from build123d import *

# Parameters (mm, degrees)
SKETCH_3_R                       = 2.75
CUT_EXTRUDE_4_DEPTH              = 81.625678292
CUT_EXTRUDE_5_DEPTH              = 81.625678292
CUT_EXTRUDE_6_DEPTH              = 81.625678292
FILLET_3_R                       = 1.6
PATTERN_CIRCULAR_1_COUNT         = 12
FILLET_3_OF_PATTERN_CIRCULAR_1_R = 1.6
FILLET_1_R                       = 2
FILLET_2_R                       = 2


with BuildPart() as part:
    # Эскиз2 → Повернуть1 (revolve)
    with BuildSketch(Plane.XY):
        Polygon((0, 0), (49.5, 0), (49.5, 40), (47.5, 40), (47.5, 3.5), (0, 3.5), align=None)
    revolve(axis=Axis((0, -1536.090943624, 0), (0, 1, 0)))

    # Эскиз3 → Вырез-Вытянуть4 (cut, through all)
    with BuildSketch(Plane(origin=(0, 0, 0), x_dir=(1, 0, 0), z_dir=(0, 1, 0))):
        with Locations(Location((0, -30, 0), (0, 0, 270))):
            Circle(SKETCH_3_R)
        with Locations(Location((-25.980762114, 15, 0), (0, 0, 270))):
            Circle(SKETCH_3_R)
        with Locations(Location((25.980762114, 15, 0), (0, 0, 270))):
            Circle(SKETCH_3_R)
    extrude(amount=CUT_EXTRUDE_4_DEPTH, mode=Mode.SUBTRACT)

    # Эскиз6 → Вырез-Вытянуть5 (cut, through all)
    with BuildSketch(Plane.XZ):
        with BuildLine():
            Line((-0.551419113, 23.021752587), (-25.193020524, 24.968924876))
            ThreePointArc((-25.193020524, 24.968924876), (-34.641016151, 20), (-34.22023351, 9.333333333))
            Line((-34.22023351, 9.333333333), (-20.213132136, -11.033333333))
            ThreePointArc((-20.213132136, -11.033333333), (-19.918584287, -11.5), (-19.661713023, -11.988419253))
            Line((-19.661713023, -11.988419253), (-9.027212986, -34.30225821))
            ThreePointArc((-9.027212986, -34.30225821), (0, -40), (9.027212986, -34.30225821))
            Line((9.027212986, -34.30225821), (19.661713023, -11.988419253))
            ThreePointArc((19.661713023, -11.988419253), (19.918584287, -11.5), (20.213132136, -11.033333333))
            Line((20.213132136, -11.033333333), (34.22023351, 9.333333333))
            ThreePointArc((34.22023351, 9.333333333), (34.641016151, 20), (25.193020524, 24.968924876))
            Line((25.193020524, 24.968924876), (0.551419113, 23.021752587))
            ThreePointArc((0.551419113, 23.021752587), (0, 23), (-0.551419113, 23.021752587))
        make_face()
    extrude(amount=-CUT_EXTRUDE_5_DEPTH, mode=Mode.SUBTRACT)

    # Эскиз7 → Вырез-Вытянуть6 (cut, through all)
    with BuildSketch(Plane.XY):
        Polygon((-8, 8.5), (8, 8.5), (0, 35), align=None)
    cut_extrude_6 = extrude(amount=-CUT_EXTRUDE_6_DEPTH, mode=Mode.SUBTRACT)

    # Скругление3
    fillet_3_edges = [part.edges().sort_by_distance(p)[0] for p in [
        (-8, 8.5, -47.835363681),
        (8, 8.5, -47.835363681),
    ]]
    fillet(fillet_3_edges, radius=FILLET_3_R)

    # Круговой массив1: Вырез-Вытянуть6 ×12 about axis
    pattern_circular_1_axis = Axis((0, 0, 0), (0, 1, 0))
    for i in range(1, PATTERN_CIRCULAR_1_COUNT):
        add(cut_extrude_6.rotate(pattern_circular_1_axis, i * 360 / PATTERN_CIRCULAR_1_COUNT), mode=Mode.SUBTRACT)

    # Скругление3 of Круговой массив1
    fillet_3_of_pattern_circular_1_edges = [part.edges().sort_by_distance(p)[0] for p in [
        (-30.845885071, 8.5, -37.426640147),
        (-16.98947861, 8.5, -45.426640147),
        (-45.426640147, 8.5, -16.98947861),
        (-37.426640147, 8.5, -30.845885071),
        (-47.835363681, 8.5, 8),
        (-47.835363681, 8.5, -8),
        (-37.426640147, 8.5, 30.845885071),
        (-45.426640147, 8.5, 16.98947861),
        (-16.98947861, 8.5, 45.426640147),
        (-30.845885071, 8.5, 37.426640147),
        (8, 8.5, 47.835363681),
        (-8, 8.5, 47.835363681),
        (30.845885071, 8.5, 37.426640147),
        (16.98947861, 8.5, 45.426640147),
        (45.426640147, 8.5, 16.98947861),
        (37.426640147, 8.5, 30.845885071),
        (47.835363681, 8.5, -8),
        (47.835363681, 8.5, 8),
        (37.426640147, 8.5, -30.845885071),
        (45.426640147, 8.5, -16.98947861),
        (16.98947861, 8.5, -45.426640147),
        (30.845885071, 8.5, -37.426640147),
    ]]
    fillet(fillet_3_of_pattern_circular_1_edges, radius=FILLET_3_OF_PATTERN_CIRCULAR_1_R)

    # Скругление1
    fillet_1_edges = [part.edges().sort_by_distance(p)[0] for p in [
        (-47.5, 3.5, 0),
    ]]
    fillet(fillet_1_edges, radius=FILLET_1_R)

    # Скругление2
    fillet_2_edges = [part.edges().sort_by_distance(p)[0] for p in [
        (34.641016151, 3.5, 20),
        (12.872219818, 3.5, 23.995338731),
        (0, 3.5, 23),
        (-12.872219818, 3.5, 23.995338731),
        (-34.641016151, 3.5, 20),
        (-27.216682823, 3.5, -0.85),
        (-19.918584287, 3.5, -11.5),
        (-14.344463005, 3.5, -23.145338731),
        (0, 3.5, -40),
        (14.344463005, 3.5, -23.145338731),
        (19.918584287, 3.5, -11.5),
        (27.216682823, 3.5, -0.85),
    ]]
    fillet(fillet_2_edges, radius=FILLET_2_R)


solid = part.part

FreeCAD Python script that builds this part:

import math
import FreeCAD as App
import Part
import Sketcher
from FreeCAD import Vector
Q = App.Units.Quantity


def edges_at(feature, points):
    """Names of the edges that pass closest to the given points."""
    edges = feature.Shape.Edges
    near = lambda p: min(range(len(edges)), key=lambda i: edges[i].distToShape(Part.Vertex(*p))[0])
    return sorted({f"Edge{near(p) + 1}" for p in points})


def add_polygon(sketch, points):
    """Adds a closed chain of lines whose ends are joined by coincident constraints."""
    first, n = sketch.GeometryCount, len(points)
    for a, b in zip(points, points[1:] + points[:1]):
        sketch.addGeometry(Part.LineSegment(App.Vector(*a, 0), App.Vector(*b, 0)), False)
    for i in range(n):
        sketch.addConstraint(Sketcher.Constraint("Coincident", first + i, 2, first + (i + 1) % n, 1))

doc = App.newDocument("Part")
params = doc.addObject("Spreadsheet::Sheet", "Params")
for row, (alias, value) in enumerate([
    ("sketch1_width", "2 mm"),
    ("sketch1_height", "40 mm"),
    ("sketch1_width2", "49.5 mm"),
    ("sketch1_height2", "36.5 mm"),
    ("revolution_angle", "360 deg"),
    ("sketch2_diameter", "5.5 mm"),
    ("sketch3_radius", "10 mm"),
    ("sketch3_radius2", "7 mm"),
    ("sketch4_width", "16 mm"),
    ("fillet_radius", "1.6 mm"),
    ("fillet2_radius", "1.6 mm"),
    ("fillet3_radius", "2 mm"),
    ("fillet4_radius", "2 mm"),
], start=1):
    params.set(f"A{row}", alias)
    params.set(f"B{row}", "=" + value)
    params.setAlias(f"B{row}", alias)

body = doc.addObject("PartDesign::Body", "Body")

# Sketch on XY plane
sketch1 = body.newObject("Sketcher::SketchObject", "Sketch")
sketch1.AttachmentSupport = (doc.getObject("XY_Plane"), [""])
sketch1.MapMode = "FlatFace"
add_polygon(sketch1, [(0, 0), (49.5, 0), (49.5, 40), (47.5, 40), (47.5, 3.5), (0, 3.5)])  # lines 0-5
sketch1.addConstraint([
    Sketcher.Constraint("Horizontal", 0),
    Sketcher.Constraint("Vertical", 1),
    Sketcher.Constraint("Horizontal", 2),
    Sketcher.Constraint("Vertical", 3),
    Sketcher.Constraint("Horizontal", 4),
    Sketcher.Constraint("Vertical", 5),
    Sketcher.Constraint("Coincident", 5, 2, -1, 1),
    Sketcher.Constraint("DistanceX", 2, 2, 2, 1, Q("2 mm")),
    Sketcher.Constraint("DistanceY", 1, 1, 1, 2, Q("40 mm")),
    Sketcher.Constraint("DistanceX", 0, 1, 0, 2, Q("49.5 mm")),
    Sketcher.Constraint("DistanceY", 3, 2, 3, 1, Q("36.5 mm")),
])
sketch1.setExpression("Constraints[13]", "Params.sketch1_width")
sketch1.setExpression("Constraints[14]", "Params.sketch1_height")
sketch1.setExpression("Constraints[15]", "Params.sketch1_width2")
sketch1.setExpression("Constraints[16]", "Params.sketch1_height2")
revolution = body.newObject("PartDesign::Revolution", "Revolution")
revolution.Profile = sketch1
revolution.ReferenceAxis = (sketch1, ["V_Axis"])
revolution.setExpression("Angle", "Params.revolution_angle")

# Sketch on XZ plane
sketch2 = body.newObject("Sketcher::SketchObject", "Sketch001")
sketch2.AttachmentSupport = (doc.getObject("XZ_Plane"), [""])
sketch2.MapMode = "FlatFace"
sketch2.addGeometry([
    Part.Circle(Vector(0, 30, 0), Vector(0, 0, 1), 2.8),
    Part.Circle(Vector(-26, -15, 0), Vector(0, 0, 1), 2.8),
    Part.Circle(Vector(26, -15, 0), Vector(0, 0, 1), 2.8),
], False)
sketch2.addConstraint([
    Sketcher.Constraint("Equal", 0, 1),
    Sketcher.Constraint("Equal", 1, 2),
    Sketcher.Constraint("Symmetric", 1, 3, 2, 3, -2),
    Sketcher.Constraint("PointOnObject", 0, 3, -2),
    Sketcher.Constraint("Diameter", 0, Q("5.5 mm")),
    Sketcher.Constraint("DistanceY", -1, 1, 0, 3, Q("30 mm")),
    Sketcher.Constraint("DistanceY", 1, 3, -1, 1, Q("15 mm")),
    Sketcher.Constraint("DistanceX", 1, 3, -1, 1, Q("25.980762 mm")),
])
sketch2.setExpression("Constraints[4]", "Params.sketch2_diameter")
pocket1 = body.newObject("PartDesign::Pocket", "Pocket")
pocket1.Profile = sketch2
pocket1.Type = "ThroughAll"

# Sketch on XZ plane
sketch3 = body.newObject("Sketcher::SketchObject", "Sketch002")
sketch3.AttachmentSupport = (doc.getObject("XZ_Plane"), [""])
sketch3.MapMode = "FlatFace"
sketch3.addGeometry([
    Part.LineSegment(Vector(-0.6, 23, 0), Vector(-25.2, 25, 0)),  # 0
    Part.ArcOfCircle(Part.Circle(Vector(-26, 15, 0), Vector(0, 0, 1), 10), math.radians(85), math.radians(215)),  # 1
    Part.LineSegment(Vector(-34.2, 9.3, 0), Vector(-20.2, -11, 0)),  # 2
    Part.ArcOfCircle(Part.Circle(Vector(-26, -15, 0), Vector(0, 0, 1), 7), math.radians(25.48), math.radians(34.52)),  # 3
    Part.LineSegment(Vector(-19.7, -12, 0), Vector(-9, -34.3, 0)),  # 4
    Part.ArcOfCircle(Part.Circle(Vector(0, -30, 0), Vector(0, 0, 1), 10), math.radians(-155), math.radians(-25)),  # 5
    Part.LineSegment(Vector(9, -34.3, 0), Vector(19.7, -12, 0)),  # 6
    Part.ArcOfCircle(Part.Circle(Vector(26, -15, 0), Vector(0, 0, 1), 7), math.radians(145.48), math.radians(154.52)),  # 7
    Part.LineSegment(Vector(20.2, -11, 0), Vector(34.2, 9.3, 0)),  # 8
    Part.ArcOfCircle(Part.Circle(Vector(26, 15, 0), Vector(0, 0, 1), 10), math.radians(-35), math.radians(95)),  # 9
    Part.LineSegment(Vector(25.2, 25, 0), Vector(0.6, 23, 0)),  # 10
    Part.ArcOfCircle(Part.Circle(Vector(0, 30, 0), Vector(0, 0, 1), 7), math.radians(-94.52), math.radians(-85.48)),  # 11
], False)
sketch3.addConstraint([
    Sketcher.Constraint("Tangent", 0, 2, 1, 1),
    Sketcher.Constraint("Tangent", 1, 2, 2, 1),
    Sketcher.Constraint("Tangent", 2, 2, 3, 2),
    Sketcher.Constraint("Tangent", 3, 1, 4, 1),
    Sketcher.Constraint("Tangent", 4, 2, 5, 1),
    Sketcher.Constraint("Tangent", 5, 2, 6, 1),
    Sketcher.Constraint("Tangent", 6, 2, 7, 2),
    Sketcher.Constraint("Tangent", 7, 1, 8, 1),
    Sketcher.Constraint("Tangent", 8, 2, 9, 1),
    Sketcher.Constraint("Tangent", 9, 2, 10, 1),
    Sketcher.Constraint("Tangent", 10, 2, 11, 2),
    Sketcher.Constraint("Tangent", 11, 1, 0, 1),
    Sketcher.Constraint("Equal", 1, 5),
    Sketcher.Constraint("Equal", 3, 7),
    Sketcher.Constraint("Equal", 5, 9),
    Sketcher.Constraint("Equal", 7, 11),
    Sketcher.Constraint("Symmetric", 1, 3, 7, 3, -1, 1),
    Sketcher.Constraint("Symmetric", 3, 3, 9, 3, -1, 1),
    Sketcher.Constraint("Symmetric", 5, 3, 11, 3, -1, 1),
    Sketcher.Constraint("Symmetric", 3, 3, 7, 3, -2),
    Sketcher.Constraint("PointOnObject", 5, 3, -2),
    Sketcher.Constraint("Equal", 0, 2),
    Sketcher.Constraint("Radius", 1, Q("10 mm")),
    Sketcher.Constraint("Radius", 3, Q("7 mm")),
    Sketcher.Constraint("DistanceY", -1, 1, 1, 3, Q("15 mm")),
    Sketcher.Constraint("DistanceY", 5, 3, -1, 1, Q("30 mm")),
])
sketch3.setExpression("Constraints[22]", "Params.sketch3_radius")
sketch3.setExpression("Constraints[23]", "Params.sketch3_radius2")
pocket2 = body.newObject("PartDesign::Pocket", "Pocket001")
pocket2.Profile = sketch3
pocket2.Type = "ThroughAll"

# Sketch on XY plane
sketch4 = body.newObject("Sketcher::SketchObject", "Sketch003")
sketch4.AttachmentSupport = (doc.getObject("XY_Plane"), [""])
sketch4.MapMode = "FlatFace"
add_polygon(sketch4, [(-8, 8), (8, 8), (0, 35)])  # lines 0-2
sketch4.addConstraint([
    Sketcher.Constraint("Horizontal", 0),
    Sketcher.Constraint("PointOnObject", 1, 2, -2),
    Sketcher.Constraint("Equal", 1, 2),
    Sketcher.Constraint("DistanceX", 0, 1, 0, 2, Q("16 mm")),
    Sketcher.Constraint("DistanceY", -1, 1, 1, 2, Q("35 mm")),
    Sketcher.Constraint("DistanceY", -1, 1, 0, 2, Q("8.5 mm")),
])
sketch4.setExpression("Constraints[6]", "Params.sketch4_width")
pocket3 = body.newObject("PartDesign::Pocket", "Pocket002")
pocket3.Profile = sketch4
pocket3.Type = "ThroughAll"
doc.recompute()

fillet = body.newObject("PartDesign::Fillet", "Fillet")
fillet.Base = (pocket3, edges_at(pocket3, [(-8, 8.5, -47.835), (8, 8.5, -47.835)]))
fillet.setExpression("Radius", "Params.fillet_radius")
doc.recompute()

polarpattern = body.newObject("PartDesign::PolarPattern", "PolarPattern")
polarpattern.Originals = [pocket3]
polarpattern.Axis = (doc.getObject("Y_Axis"), [""])
polarpattern.Angle = 360
polarpattern.Occurrences = 12
body.Tip = polarpattern
doc.recompute()

fillet2 = body.newObject("PartDesign::Fillet", "Fillet001")
fillet2.Base = (polarpattern, edges_at(polarpattern, [
    (-30.846, 8.5, -37.427),
    (-16.989, 8.5, -45.427),
    (-45.427, 8.5, -16.989),
    (-37.427, 8.5, -30.846),
    (-47.835, 8.5, 8),
    (-47.835, 8.5, -8),
    (-37.427, 8.5, 30.846),
    (-45.427, 8.5, 16.989),
    (-16.989, 8.5, 45.427),
    (-30.846, 8.5, 37.427),
    (8, 8.5, 47.835),
    (-8, 8.5, 47.835),
    (30.846, 8.5, 37.427),
    (16.989, 8.5, 45.427),
    (45.427, 8.5, 16.989),
    (37.427, 8.5, 30.846),
    (47.835, 8.5, -8),
    (47.835, 8.5, 8),
    (37.427, 8.5, -30.846),
    (45.427, 8.5, -16.989),
    (16.989, 8.5, -45.427),
    (30.846, 8.5, -37.427),
]))
fillet2.setExpression("Radius", "Params.fillet2_radius")
doc.recompute()

fillet3 = body.newObject("PartDesign::Fillet", "Fillet002")
fillet3.Base = (fillet2, edges_at(fillet2, [(-47.5, 3.5, 0)]))
fillet3.setExpression("Radius", "Params.fillet3_radius")
doc.recompute()

fillet4 = body.newObject("PartDesign::Fillet", "Fillet003")
fillet4.Base = (fillet3, edges_at(fillet3, [
    (34.641, 3.5, 20),
    (12.872, 3.5, 23.995),
    (0, 3.5, 23),
    (-12.872, 3.5, 23.995),
    (-34.641, 3.5, 20),
    (-27.217, 3.5, -0.85),
    (-19.919, 3.5, -11.5),
    (-14.344, 3.5, -23.145),
    (0, 3.5, -40),
    (14.344, 3.5, -23.145),
    (19.919, 3.5, -11.5),
    (27.217, 3.5, -0.85),
]))
fillet4.setExpression("Radius", "Params.fillet4_radius")

doc.recompute()
